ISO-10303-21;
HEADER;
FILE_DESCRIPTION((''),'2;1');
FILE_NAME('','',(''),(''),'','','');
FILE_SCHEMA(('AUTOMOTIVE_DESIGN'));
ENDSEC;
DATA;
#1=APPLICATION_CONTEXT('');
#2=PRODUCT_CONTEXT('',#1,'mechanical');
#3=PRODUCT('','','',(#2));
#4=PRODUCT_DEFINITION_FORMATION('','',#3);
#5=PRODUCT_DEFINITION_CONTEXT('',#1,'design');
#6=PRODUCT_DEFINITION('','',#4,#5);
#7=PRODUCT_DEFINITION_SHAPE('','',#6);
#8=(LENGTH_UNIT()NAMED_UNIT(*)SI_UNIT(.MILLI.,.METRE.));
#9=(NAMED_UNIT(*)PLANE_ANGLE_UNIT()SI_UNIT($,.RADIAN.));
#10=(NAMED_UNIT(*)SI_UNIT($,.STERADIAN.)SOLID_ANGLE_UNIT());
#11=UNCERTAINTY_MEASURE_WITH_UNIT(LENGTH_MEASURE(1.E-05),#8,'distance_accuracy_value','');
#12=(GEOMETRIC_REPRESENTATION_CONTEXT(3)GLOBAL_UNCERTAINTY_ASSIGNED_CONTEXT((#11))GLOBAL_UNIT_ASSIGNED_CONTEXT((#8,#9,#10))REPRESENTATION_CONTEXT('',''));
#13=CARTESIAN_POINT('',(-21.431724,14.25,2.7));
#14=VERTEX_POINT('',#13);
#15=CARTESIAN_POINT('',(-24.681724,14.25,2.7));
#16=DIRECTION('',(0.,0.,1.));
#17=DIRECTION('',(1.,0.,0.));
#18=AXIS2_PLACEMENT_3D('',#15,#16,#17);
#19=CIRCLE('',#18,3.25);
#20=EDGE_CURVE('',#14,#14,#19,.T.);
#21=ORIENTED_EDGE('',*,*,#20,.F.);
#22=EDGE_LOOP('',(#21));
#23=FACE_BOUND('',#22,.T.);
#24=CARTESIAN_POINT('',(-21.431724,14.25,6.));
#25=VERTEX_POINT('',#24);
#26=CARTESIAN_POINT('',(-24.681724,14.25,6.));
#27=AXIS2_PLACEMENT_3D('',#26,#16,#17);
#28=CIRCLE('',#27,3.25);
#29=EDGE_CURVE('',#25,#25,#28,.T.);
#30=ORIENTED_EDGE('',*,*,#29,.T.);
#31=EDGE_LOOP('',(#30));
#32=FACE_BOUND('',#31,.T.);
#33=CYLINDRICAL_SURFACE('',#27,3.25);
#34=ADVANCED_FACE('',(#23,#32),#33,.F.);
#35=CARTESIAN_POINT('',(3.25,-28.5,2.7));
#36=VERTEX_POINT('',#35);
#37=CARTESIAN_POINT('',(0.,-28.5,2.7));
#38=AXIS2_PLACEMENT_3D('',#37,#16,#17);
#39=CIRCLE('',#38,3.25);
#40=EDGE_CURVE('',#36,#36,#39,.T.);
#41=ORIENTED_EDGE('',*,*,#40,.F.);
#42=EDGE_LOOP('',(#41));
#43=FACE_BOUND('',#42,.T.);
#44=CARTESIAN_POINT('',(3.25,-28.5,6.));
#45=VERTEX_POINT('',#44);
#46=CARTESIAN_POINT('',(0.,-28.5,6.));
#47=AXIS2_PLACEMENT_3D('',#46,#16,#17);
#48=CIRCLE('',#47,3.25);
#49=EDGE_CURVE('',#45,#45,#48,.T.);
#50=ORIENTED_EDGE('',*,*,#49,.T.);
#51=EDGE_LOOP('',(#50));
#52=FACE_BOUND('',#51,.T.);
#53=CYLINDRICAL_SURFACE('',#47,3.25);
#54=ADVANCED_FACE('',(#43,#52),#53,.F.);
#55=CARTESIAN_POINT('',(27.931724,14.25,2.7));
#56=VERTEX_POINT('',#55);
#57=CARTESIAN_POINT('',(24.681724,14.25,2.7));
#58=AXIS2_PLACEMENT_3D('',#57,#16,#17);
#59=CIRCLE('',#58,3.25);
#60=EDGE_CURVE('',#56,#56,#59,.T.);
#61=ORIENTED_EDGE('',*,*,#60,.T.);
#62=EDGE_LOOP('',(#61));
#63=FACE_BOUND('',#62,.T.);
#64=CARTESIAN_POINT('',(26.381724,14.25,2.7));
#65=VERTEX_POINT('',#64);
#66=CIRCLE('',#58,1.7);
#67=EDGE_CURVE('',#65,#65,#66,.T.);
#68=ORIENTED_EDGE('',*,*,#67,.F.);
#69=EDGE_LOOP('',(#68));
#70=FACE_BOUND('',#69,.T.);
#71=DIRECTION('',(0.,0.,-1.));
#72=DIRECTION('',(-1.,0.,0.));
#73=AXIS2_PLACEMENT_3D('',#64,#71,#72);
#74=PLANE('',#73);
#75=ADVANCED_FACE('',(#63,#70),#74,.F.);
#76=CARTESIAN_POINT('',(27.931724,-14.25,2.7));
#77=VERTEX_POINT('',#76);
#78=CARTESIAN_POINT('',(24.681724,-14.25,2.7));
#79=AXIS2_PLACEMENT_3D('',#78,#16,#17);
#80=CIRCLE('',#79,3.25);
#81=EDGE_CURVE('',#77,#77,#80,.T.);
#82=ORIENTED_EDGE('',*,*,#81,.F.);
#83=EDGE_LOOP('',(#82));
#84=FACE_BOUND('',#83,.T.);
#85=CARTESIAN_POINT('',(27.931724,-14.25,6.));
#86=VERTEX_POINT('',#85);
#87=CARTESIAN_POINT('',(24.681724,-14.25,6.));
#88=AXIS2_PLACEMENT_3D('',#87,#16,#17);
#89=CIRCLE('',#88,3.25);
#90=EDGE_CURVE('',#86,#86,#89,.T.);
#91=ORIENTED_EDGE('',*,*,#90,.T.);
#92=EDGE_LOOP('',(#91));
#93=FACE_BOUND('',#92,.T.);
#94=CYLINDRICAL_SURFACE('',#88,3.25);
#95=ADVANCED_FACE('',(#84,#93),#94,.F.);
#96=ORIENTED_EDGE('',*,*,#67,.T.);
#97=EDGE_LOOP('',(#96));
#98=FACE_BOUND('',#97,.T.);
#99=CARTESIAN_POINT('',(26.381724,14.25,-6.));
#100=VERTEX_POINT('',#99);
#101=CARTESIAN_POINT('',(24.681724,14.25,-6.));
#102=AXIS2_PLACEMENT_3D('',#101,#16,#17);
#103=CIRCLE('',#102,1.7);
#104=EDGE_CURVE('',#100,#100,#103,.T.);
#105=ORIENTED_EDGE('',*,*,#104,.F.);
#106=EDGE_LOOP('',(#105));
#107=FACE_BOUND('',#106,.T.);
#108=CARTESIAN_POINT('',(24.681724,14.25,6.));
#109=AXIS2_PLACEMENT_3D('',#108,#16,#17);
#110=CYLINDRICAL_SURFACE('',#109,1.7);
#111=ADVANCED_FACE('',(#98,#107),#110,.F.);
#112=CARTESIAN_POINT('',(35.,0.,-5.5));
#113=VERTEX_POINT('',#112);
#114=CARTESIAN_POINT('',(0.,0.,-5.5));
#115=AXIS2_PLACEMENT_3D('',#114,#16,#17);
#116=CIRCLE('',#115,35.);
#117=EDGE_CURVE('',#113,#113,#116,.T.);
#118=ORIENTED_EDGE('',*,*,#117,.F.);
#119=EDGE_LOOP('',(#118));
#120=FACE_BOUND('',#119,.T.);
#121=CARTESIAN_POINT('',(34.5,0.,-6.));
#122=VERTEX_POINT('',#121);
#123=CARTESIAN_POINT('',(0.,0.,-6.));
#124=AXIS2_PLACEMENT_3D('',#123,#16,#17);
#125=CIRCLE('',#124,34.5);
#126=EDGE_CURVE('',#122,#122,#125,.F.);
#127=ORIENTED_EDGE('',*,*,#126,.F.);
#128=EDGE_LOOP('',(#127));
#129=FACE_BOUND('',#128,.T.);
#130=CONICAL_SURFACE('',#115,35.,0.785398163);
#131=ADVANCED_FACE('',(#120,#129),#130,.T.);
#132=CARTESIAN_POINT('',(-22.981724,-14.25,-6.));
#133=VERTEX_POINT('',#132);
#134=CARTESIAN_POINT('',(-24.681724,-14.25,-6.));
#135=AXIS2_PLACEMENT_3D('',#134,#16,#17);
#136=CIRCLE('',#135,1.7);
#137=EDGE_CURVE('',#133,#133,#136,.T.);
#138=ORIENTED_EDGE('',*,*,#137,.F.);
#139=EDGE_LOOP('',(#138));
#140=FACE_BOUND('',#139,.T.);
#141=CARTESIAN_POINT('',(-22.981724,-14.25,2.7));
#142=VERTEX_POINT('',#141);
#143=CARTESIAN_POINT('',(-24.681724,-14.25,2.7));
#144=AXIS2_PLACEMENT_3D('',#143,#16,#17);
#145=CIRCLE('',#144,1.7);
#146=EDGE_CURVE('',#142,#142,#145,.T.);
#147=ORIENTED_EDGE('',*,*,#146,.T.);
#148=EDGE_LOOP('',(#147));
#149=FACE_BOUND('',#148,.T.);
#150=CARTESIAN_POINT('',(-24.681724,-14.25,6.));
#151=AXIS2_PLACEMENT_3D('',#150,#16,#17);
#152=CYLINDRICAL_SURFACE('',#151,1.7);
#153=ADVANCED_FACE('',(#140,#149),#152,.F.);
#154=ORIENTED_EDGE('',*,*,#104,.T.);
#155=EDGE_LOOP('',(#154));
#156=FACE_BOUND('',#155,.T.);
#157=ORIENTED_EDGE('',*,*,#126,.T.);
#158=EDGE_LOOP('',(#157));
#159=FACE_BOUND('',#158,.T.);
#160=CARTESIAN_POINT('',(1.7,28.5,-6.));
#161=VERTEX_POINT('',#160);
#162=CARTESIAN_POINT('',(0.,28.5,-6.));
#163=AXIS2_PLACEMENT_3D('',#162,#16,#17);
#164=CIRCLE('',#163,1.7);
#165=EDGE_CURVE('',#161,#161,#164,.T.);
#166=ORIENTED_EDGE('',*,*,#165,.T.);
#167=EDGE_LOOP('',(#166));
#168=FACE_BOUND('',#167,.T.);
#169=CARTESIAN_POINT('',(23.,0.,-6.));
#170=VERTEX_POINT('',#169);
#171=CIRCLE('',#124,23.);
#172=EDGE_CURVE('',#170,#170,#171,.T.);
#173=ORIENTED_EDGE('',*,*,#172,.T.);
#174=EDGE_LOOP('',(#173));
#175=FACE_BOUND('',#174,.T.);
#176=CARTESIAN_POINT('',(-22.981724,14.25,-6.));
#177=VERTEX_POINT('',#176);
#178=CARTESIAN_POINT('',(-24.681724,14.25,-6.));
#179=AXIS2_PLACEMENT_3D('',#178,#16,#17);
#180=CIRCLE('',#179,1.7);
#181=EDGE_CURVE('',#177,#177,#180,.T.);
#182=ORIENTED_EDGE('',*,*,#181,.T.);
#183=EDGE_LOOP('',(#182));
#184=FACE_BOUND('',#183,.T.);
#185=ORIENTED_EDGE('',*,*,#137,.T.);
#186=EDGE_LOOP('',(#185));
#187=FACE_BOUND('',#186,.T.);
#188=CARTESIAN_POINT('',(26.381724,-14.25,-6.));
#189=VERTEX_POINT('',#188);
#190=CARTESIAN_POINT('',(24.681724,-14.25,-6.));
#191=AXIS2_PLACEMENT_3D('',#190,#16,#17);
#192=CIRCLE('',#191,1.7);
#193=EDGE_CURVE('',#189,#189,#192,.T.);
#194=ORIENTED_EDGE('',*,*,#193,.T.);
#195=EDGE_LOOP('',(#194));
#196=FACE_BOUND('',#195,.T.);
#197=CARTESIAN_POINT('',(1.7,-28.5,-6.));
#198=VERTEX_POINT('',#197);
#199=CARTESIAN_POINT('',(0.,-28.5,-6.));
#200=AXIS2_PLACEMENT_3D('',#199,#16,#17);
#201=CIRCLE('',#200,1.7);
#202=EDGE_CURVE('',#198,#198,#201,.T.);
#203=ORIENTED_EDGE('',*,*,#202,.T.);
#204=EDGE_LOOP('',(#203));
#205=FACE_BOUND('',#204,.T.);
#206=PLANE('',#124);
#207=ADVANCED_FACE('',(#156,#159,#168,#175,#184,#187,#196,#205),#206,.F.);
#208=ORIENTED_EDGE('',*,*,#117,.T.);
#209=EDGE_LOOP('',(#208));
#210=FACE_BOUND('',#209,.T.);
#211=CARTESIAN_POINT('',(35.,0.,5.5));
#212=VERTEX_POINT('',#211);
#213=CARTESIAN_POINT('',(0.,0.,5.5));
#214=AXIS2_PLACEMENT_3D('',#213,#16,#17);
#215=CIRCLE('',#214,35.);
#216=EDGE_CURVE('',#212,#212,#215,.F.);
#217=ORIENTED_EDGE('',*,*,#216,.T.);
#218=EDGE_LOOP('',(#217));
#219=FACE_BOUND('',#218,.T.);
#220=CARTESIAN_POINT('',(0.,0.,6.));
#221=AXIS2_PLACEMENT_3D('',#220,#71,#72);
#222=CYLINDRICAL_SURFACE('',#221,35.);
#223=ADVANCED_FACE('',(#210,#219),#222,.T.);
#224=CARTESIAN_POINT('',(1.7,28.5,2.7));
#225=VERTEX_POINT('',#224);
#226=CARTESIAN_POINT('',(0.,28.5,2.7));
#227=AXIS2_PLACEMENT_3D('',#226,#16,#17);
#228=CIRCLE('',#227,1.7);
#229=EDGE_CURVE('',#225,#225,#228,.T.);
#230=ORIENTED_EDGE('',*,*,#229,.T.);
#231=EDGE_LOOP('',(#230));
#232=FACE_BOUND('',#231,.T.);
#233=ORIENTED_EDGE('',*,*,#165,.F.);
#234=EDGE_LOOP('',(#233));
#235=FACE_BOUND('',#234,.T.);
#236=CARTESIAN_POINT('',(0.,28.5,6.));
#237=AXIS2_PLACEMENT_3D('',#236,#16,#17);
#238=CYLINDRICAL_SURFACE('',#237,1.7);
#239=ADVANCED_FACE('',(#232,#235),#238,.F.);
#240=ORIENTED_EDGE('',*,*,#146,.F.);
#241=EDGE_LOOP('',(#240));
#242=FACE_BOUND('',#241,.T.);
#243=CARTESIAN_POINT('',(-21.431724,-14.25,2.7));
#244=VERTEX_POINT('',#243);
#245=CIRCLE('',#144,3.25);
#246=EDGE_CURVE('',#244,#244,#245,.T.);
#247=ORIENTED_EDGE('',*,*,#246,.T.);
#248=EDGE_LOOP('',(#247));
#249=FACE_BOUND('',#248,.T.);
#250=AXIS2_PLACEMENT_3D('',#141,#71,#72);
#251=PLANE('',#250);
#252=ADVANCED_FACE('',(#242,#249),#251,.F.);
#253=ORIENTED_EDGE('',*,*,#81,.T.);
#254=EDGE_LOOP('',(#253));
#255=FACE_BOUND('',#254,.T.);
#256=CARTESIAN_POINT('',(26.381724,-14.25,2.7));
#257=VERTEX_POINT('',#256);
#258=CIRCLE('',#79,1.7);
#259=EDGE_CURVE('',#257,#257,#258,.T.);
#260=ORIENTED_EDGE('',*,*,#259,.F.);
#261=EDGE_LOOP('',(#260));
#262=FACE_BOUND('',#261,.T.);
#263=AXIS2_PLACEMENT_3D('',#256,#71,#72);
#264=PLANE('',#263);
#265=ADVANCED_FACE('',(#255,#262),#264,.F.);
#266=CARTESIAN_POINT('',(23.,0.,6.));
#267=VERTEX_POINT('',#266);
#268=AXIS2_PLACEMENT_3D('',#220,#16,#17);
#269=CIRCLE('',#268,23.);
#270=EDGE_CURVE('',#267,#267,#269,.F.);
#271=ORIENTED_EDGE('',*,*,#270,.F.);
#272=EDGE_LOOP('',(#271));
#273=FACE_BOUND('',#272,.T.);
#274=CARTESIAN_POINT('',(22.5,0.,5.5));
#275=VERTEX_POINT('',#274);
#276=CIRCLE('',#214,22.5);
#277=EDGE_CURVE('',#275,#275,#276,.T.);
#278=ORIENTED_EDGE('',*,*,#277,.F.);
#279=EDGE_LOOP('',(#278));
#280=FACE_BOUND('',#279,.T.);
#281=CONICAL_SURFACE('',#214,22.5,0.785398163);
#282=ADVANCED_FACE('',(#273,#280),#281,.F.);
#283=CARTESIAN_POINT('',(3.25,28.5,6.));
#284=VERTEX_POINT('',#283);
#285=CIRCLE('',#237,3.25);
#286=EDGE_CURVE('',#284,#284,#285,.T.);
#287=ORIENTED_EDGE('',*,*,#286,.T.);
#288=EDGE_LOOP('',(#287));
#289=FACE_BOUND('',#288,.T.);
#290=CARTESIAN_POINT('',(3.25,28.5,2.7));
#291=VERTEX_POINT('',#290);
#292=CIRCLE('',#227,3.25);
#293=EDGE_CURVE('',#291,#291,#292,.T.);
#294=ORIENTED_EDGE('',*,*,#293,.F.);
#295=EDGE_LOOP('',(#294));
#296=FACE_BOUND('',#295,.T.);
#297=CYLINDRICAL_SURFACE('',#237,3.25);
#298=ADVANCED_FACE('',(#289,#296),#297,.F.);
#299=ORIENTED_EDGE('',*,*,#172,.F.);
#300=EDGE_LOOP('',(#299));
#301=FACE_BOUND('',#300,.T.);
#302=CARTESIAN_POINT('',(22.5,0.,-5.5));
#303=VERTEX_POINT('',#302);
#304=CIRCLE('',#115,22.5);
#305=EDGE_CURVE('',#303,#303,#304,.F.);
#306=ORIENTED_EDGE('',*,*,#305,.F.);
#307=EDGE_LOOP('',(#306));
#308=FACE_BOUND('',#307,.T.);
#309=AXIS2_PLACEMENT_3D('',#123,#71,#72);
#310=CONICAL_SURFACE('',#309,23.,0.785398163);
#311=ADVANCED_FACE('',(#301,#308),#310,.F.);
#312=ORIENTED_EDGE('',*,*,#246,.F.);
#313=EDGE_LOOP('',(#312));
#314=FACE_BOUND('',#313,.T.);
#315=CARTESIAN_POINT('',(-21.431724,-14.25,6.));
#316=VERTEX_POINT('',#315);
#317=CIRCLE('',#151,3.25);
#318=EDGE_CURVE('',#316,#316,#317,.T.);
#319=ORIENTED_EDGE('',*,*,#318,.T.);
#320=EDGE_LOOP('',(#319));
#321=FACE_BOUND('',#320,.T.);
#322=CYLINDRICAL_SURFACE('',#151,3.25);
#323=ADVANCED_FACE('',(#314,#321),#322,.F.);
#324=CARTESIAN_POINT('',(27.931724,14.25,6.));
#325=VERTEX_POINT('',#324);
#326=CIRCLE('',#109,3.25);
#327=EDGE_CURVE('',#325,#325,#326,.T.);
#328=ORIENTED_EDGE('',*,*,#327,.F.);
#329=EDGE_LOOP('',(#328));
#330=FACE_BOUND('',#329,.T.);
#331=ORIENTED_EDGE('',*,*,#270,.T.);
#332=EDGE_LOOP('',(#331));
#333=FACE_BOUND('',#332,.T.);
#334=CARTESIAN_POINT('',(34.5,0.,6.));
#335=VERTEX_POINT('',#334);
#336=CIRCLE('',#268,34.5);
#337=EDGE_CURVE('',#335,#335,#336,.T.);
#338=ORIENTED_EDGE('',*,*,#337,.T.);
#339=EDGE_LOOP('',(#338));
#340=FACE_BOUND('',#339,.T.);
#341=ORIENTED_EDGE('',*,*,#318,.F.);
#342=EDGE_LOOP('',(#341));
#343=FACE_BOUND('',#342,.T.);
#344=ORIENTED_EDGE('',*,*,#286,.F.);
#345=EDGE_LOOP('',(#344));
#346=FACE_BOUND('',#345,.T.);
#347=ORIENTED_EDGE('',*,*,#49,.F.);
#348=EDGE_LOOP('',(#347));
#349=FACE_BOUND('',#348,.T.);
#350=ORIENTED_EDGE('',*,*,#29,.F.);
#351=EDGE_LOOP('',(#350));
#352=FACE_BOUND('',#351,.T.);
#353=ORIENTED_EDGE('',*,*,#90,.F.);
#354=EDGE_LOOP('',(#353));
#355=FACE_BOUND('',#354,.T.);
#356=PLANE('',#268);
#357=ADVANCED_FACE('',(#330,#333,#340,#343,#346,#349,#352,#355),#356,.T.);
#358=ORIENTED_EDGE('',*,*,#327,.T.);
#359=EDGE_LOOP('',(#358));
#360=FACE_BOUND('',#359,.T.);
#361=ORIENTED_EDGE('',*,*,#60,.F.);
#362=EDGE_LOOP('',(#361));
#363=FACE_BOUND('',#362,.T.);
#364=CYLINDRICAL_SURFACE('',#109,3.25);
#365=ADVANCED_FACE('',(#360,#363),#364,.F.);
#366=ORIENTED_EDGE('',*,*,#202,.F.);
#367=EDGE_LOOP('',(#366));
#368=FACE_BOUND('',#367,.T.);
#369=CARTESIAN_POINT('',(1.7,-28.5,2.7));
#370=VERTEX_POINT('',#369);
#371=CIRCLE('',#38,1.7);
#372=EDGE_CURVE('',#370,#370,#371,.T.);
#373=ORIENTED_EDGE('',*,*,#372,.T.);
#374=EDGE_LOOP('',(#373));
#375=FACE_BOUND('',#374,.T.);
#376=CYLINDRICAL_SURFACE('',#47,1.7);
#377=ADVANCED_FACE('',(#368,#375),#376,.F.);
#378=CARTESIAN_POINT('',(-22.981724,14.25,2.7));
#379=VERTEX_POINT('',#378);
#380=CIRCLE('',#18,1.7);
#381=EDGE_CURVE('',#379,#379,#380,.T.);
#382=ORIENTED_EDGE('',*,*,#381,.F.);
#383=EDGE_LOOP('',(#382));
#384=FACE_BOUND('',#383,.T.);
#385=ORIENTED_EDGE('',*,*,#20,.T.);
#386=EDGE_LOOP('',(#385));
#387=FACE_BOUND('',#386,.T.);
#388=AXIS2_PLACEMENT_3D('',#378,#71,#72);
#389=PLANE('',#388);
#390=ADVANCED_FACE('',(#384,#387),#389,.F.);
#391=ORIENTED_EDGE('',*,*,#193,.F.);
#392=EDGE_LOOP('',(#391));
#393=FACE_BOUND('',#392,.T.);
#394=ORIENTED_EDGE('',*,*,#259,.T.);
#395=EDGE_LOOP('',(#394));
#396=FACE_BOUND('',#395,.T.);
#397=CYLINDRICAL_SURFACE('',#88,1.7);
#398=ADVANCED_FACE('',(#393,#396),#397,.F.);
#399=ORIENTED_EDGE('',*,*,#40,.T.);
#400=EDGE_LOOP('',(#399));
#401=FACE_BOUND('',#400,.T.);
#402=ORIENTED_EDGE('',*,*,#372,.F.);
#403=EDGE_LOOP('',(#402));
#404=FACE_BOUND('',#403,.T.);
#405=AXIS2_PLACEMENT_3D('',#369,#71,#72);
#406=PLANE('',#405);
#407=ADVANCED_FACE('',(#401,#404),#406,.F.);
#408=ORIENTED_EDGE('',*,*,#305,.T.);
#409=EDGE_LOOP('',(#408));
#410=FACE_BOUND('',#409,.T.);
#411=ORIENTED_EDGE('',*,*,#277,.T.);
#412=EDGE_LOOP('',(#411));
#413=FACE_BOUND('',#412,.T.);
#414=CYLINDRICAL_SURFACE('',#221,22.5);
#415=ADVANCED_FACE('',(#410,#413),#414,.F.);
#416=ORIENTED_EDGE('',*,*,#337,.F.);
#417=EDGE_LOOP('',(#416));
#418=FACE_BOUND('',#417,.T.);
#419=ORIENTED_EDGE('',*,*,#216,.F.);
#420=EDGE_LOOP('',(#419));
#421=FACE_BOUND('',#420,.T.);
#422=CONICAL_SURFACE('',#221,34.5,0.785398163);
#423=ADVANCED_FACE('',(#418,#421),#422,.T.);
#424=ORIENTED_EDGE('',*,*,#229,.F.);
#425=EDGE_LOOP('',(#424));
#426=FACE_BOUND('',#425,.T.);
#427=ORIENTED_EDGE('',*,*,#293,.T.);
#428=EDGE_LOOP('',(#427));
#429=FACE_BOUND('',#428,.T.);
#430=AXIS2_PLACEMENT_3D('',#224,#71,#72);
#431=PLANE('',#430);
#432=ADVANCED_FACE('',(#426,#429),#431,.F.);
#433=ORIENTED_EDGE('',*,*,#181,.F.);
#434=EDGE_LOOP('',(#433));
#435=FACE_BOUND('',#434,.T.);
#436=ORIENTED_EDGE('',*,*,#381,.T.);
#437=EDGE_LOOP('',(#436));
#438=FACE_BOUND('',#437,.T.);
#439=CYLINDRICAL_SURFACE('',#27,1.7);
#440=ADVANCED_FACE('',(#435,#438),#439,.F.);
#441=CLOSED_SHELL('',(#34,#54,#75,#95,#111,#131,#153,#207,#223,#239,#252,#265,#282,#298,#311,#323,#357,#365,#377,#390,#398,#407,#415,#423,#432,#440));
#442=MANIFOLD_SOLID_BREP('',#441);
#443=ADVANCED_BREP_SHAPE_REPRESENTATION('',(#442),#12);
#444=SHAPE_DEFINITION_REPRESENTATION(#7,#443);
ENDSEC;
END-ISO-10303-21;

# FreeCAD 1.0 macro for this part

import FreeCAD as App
import Part
import Sketcher
from FreeCAD import Vector


def edges_at(feature, points):
    """Names of the edges that pass closest to the given points."""
    edges = feature.Shape.Edges
    near = lambda p: min(range(len(edges)), key=lambda i: edges[i].distToShape(Part.Vertex(*p))[0])
    return sorted({f"Edge{near(p) + 1}" for p in points})

doc = App.newDocument("Part")
body = doc.addObject("PartDesign::Body", "Body")

# Sketch on XY plane
sketch1 = body.newObject("Sketcher::SketchObject", "Sketch")
sketch1.AttachmentSupport = (doc.getObject("XY_Plane"), [""])
sketch1.MapMode = "FlatFace"
sketch1.addGeometry([
    Part.Circle(Vector(0, 0, 0), Vector(0, 0, 1), 35),
    Part.Circle(Vector(0, 0, 0), Vector(0, 0, 1), 22.5),
], False)
sketch1.addConstraint([
    Sketcher.Constraint("Coincident", 0, 3, -1, 1),
    Sketcher.Constraint("Coincident", 1, 3, -1, 1),
    Sketcher.Constraint("Diameter", 0, 70.0),
    Sketcher.Constraint("Diameter", 1, 45.0),
])
pad1 = body.newObject("PartDesign::Pad", "Pad")
pad1.Profile = sketch1
pad1.Length = 12
pad1.Midplane = True

# Sketch on XY plane
sketch2 = body.newObject("Sketcher::SketchObject", "Sketch001")
sketch2.AttachmentSupport = (doc.getObject("XY_Plane"), [""])
sketch2.MapMode = "FlatFace"
sketch2.AttachmentOffset = App.Placement(Vector(0, 0, 6), App.Rotation())
sketch2.addGeometry(Part.Circle(Vector(0, 28.5, 0), Vector(0, 0, 1), 1.7), False)
sketch2.addConstraint([
    Sketcher.Constraint("PointOnObject", 0, 3, -2),
    Sketcher.Constraint("Diameter", 0, 3.4),
    Sketcher.Constraint("DistanceY", -1, 1, 0, 3, 28.5),
])
doc.recompute()
hole = body.newObject("PartDesign::Hole", "Hole")
hole.Profile = sketch2
hole.ThreadType = "None"
hole.Diameter = 3.4
hole.DepthType = "ThroughAll"
hole.HoleCutType = "Counterbore"
hole.HoleCutDiameter = 6.5
hole.HoleCutDepth = 3.3
doc.recompute()

polarpattern = body.newObject("PartDesign::PolarPattern", "PolarPattern")
polarpattern.Originals = [hole]
polarpattern.Axis = (doc.getObject("Z_Axis"), [""])
polarpattern.Angle = 360
polarpattern.Occurrences = 6
body.Tip = polarpattern
doc.recompute()

chamfer = body.newObject("PartDesign::Chamfer", "Chamfer")
chamfer.Base = (polarpattern, edges_at(polarpattern, [
    (-35, 0, -6),
    (-35, 0, 6),
    (-22.5, 0, -6),
    (-22.5, 0, 6),
]))
chamfer.Size = 0.5

doc.recompute()
